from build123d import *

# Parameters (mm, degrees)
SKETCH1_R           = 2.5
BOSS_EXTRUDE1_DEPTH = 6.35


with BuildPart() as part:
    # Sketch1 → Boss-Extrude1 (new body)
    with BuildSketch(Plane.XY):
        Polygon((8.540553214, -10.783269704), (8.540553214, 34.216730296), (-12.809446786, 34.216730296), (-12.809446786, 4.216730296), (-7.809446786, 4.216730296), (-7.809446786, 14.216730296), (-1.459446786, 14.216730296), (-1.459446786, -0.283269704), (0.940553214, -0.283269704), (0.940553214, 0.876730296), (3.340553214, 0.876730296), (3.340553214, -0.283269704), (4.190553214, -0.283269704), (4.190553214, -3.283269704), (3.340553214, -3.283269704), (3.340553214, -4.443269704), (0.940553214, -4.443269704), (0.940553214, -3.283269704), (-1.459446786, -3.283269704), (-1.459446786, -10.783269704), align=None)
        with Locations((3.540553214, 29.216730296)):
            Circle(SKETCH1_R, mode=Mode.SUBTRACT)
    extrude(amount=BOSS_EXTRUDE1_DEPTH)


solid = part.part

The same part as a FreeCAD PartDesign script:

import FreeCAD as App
import Part
import Sketcher

V = App.Vector
Q = App.Units.Quantity

doc = App.newDocument("Part")
body = doc.addObject("PartDesign::Body", "Body")

sketch1 = body.newObject("Sketcher::SketchObject", "Sketch")
sketch1.AttachmentSupport = (doc.getObject("XY_Plane"), [""])
sketch1.MapMode = "FlatFace"
sketch1.addGeometry([
    Part.LineSegment(V(8.540553, -10.78327, 0), V(8.540553, 34.21673, 0)),
    Part.LineSegment(V(8.540553, 34.21673, 0), V(-12.809447, 34.21673, 0)),
    Part.LineSegment(V(-12.809447, 34.21673, 0), V(-12.809447, 4.21673, 0)),
    Part.LineSegment(V(-12.809447, 4.21673, 0), V(-7.809447, 4.21673, 0)),
    Part.LineSegment(V(-7.809447, 4.21673, 0), V(-7.809447, 14.21673, 0)),
    Part.LineSegment(V(-7.809447, 14.21673, 0), V(-1.459447, 14.21673, 0)),
    Part.LineSegment(V(-1.459447, 14.21673, 0), V(-1.459447, -0.28327, 0)),
    Part.LineSegment(V(-1.459447, -0.28327, 0), V(0.940553, -0.28327, 0)),
    Part.LineSegment(V(0.940553, -0.28327, 0), V(0.940553, 0.87673, 0)),
    Part.LineSegment(V(0.940553, 0.87673, 0), V(3.340553, 0.87673, 0)),
    Part.LineSegment(V(3.340553, 0.87673, 0), V(3.340553, -0.28327, 0)),
    Part.LineSegment(V(3.340553, -0.28327, 0), V(4.190553, -0.28327, 0)),
    Part.LineSegment(V(4.190553, -0.28327, 0), V(4.190553, -3.28327, 0)),
    Part.LineSegment(V(4.190553, -3.28327, 0), V(3.340553, -3.28327, 0)),
    Part.LineSegment(V(3.340553, -3.28327, 0), V(3.340553, -4.44327, 0)),
    Part.LineSegment(V(3.340553, -4.44327, 0), V(0.940553, -4.44327, 0)),
    Part.LineSegment(V(0.940553, -4.44327, 0), V(0.940553, -3.28327, 0)),
    Part.LineSegment(V(0.940553, -3.28327, 0), V(-1.459447, -3.28327, 0)),
    Part.LineSegment(V(-1.459447, -3.28327, 0), V(-1.459447, -10.78327, 0)),
    Part.LineSegment(V(-1.459447, -10.78327, 0), V(8.540553, -10.78327, 0)),
    Part.Circle(V(3.540553, 29.21673, 0), V(0, 0, 1), 2.5),
], False)
sketch1.addConstraint([
    Sketcher.Constraint("Coincident", 0, 2, 1, 1),
    Sketcher.Constraint("Coincident", 1, 2, 2, 1),
    Sketcher.Constraint("Coincident", 2, 2, 3, 1),
    Sketcher.Constraint("Coincident", 3, 2, 4, 1),
    Sketcher.Constraint("Coincident", 4, 2, 5, 1),
    Sketcher.Constraint("Coincident", 5, 2, 6, 1),
    Sketcher.Constraint("Coincident", 6, 2, 7, 1),
    Sketcher.Constraint("Coincident", 7, 2, 8, 1),
    Sketcher.Constraint("Coincident", 8, 2, 9, 1),
    Sketcher.Constraint("Coincident", 9, 2, 10, 1),
    Sketcher.Constraint("Coincident", 10, 2, 11, 1),
    Sketcher.Constraint("Coincident", 11, 2, 12, 1),
    Sketcher.Constraint("Coincident", 12, 2, 13, 1),
    Sketcher.Constraint("Coincident", 13, 2, 14, 1),
    Sketcher.Constraint("Coincident", 14, 2, 15, 1),
    Sketcher.Constraint("Coincident", 15, 2, 16, 1),
    Sketcher.Constraint("Coincident", 16, 2, 17, 1),
    Sketcher.Constraint("Coincident", 17, 2, 18, 1),
    Sketcher.Constraint("Coincident", 18, 2, 19, 1),
    Sketcher.Constraint("Coincident", 19, 2, 0, 1),
    Sketcher.Constraint("Vertical", 0),
    Sketcher.Constraint("Horizontal", 1),
    Sketcher.Constraint("Vertical", 2),
    Sketcher.Constraint("Horizontal", 3),
    Sketcher.Constraint("Vertical", 4),
    Sketcher.Constraint("Horizontal", 5),
    Sketcher.Constraint("Vertical", 6),
    Sketcher.Constraint("Horizontal", 7),
    Sketcher.Constraint("Vertical", 8),
    Sketcher.Constraint("Horizontal", 9),
    Sketcher.Constraint("Vertical", 10),
    Sketcher.Constraint("Horizontal", 11),
    Sketcher.Constraint("Vertical", 12),
    Sketcher.Constraint("Horizontal", 13),
    Sketcher.Constraint("Vertical", 14),
    Sketcher.Constraint("Horizontal", 15),
    Sketcher.Constraint("Vertical", 16),
    Sketcher.Constraint("Horizontal", 17),
    Sketcher.Constraint("Vertical", 18),
    Sketcher.Constraint("Horizontal", 19),
    Sketcher.Constraint("Horizontal", 7, 2, 10, 2),
    Sketcher.Constraint("Horizontal", 13, 2, 16, 2),
    Sketcher.Constraint("Vertical", 10, 2, 13, 2),
    Sketcher.Constraint("Vertical", 8, 2, 15, 2),
    Sketcher.Constraint("Vertical", 6, 2, 17, 2),
    Sketcher.Constraint("Equal", 7, 9),
    Sketcher.Constraint("Equal", 19, 4),
    Sketcher.Constraint("Equal", 10, 14),
    Sketcher.Constraint("Diameter", 20, Q("5 mm")),
    Sketcher.Constraint("DistanceX", 3, 1, 3, 2, Q("5 mm")),
    Sketcher.Constraint("DistanceX", 19, 1, 19, 2, Q("10 mm")),
    Sketcher.Constraint("DistanceY", 0, 1, 0, 2, Q("45 mm")),
    Sketcher.Constraint("DistanceY", 2, 2, 2, 1, Q("30 mm")),
    Sketcher.Constraint("DistanceY", 12, 2, 12, 1, Q("3 mm")),
    Sketcher.Constraint("DistanceX", 7, 1, 7, 2, Q("2.4 mm")),
    Sketcher.Constraint("DistanceY", 6, 2, 6, 1, Q("14.5 mm")),
    Sketcher.Constraint("DistanceX", 20, 3, 0, 2, Q("5 mm")),
    Sketcher.Constraint("DistanceY", 20, 3, 0, 2, Q("5 mm")),
    Sketcher.Constraint("DistanceX", 1, 2, 1, 1, Q("21.35 mm")),
    Sketcher.Constraint("DistanceX", 11, 1, 11, 2, Q("0.85 mm")),
    Sketcher.Constraint("DistanceY", 8, 1, 8, 2, Q("1.16 mm")),
    Sketcher.Constraint("DistanceY", -1, 1, 20, 3, Q("29.21673 mm")),
    Sketcher.Constraint("DistanceX", -1, 1, 20, 3, Q("3.540553 mm")),
])
pad1 = body.newObject("PartDesign::Pad", "Pad")
pad1.Profile = sketch1
pad1.Length = 6.35

doc.recompute()
